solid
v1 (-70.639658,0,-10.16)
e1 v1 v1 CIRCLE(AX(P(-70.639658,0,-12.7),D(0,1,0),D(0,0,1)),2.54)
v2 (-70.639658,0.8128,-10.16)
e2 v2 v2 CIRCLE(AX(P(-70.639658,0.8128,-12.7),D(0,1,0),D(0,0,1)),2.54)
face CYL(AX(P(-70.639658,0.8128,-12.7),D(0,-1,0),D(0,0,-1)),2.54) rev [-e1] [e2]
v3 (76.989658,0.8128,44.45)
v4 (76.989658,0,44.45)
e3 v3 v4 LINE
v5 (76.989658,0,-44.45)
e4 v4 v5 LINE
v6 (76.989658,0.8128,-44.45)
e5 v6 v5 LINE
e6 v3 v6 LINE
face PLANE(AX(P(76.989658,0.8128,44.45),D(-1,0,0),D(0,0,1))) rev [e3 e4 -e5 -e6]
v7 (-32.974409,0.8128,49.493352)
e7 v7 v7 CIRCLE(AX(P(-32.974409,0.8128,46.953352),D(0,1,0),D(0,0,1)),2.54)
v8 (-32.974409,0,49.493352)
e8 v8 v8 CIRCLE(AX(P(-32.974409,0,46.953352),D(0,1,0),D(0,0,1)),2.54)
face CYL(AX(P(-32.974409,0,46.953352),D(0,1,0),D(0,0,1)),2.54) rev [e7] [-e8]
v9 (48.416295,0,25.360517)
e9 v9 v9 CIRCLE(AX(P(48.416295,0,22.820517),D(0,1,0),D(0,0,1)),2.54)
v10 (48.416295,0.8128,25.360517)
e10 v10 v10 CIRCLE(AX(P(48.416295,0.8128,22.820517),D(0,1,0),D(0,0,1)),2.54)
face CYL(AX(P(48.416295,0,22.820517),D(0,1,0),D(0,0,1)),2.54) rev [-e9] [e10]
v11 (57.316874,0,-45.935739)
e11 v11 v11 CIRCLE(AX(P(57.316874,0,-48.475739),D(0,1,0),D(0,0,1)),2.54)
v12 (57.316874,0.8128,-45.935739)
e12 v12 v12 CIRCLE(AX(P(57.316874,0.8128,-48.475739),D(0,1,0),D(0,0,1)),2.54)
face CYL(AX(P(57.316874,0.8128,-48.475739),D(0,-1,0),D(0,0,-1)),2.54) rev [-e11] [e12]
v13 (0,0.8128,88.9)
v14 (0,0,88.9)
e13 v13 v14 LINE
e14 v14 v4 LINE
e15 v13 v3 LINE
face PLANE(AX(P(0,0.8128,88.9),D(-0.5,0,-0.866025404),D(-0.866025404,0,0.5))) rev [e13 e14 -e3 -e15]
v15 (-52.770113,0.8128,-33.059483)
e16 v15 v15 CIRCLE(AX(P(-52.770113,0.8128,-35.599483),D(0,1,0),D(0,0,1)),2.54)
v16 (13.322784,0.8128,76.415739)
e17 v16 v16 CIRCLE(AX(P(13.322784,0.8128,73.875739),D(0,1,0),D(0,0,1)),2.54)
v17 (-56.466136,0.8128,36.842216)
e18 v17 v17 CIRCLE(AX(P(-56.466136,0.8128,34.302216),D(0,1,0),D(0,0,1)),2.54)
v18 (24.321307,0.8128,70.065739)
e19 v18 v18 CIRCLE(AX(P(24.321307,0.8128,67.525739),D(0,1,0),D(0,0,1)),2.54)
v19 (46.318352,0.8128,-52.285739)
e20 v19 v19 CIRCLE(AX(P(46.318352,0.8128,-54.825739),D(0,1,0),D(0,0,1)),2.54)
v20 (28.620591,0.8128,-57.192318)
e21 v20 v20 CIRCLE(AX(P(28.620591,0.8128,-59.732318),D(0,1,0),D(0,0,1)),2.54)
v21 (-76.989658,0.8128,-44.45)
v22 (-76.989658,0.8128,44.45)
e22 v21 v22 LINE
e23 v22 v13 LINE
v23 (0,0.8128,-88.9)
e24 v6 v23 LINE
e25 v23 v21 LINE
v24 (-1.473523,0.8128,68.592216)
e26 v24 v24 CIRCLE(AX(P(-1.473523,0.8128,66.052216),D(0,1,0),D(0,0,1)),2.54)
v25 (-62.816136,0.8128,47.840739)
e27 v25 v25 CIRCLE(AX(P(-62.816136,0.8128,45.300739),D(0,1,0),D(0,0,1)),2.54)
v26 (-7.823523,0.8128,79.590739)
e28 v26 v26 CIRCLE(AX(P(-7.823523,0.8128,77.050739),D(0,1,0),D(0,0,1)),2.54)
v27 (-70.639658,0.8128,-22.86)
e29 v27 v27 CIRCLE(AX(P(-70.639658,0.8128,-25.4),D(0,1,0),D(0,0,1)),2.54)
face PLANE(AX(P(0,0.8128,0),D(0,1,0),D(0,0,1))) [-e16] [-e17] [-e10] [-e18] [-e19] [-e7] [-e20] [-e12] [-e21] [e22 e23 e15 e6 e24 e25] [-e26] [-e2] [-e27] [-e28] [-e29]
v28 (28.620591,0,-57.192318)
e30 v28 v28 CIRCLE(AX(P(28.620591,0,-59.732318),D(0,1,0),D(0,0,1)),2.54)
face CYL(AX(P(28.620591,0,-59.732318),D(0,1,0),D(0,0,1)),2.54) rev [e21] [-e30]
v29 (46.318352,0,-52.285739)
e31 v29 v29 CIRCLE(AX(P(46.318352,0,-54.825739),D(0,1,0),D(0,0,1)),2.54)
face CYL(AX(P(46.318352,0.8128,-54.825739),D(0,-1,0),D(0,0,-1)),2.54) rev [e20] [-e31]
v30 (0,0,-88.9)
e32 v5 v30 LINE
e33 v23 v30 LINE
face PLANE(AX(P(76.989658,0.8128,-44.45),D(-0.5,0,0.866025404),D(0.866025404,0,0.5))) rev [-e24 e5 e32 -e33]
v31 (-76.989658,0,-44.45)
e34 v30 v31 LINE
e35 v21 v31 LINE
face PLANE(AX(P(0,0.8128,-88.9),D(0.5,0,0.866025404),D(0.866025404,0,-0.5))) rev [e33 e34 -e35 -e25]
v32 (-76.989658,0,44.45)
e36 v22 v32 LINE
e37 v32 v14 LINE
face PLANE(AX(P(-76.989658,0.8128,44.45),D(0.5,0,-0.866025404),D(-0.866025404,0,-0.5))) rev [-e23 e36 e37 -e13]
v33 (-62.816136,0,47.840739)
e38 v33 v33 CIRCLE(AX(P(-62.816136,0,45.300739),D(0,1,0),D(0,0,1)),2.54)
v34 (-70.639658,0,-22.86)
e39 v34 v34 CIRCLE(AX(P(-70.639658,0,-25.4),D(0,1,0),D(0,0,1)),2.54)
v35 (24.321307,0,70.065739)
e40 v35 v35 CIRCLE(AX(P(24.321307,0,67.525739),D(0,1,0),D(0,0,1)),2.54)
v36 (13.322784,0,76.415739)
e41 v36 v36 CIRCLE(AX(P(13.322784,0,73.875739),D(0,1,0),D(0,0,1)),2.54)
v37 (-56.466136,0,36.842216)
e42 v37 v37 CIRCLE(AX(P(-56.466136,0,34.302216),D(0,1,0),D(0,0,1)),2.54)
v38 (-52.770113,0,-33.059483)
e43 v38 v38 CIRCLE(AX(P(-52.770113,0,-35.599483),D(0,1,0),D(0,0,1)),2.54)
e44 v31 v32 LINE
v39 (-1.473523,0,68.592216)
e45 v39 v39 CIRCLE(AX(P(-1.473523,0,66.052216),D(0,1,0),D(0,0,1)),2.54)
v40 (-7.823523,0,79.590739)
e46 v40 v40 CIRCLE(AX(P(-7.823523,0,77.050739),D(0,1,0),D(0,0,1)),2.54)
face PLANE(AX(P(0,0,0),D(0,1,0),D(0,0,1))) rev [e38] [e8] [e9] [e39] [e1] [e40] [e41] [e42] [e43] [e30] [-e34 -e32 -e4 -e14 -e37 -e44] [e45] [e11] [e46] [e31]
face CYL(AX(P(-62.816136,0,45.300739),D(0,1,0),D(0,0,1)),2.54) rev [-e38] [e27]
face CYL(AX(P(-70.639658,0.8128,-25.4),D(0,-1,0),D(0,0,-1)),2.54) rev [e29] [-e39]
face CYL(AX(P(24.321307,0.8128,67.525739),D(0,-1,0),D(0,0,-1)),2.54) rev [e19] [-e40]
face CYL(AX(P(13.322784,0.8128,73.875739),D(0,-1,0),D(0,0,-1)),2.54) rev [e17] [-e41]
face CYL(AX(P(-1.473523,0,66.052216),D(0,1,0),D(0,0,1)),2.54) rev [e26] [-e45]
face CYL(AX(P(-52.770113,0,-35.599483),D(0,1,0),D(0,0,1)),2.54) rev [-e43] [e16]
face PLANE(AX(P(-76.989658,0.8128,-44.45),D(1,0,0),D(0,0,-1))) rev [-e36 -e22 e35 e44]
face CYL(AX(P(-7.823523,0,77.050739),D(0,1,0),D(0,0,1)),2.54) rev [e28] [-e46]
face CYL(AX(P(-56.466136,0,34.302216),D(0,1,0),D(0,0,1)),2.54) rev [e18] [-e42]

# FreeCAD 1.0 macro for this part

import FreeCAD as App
import Part
import Sketcher

V = App.Vector
Q = App.Units.Quantity

doc = App.newDocument("Part")
body = doc.addObject("PartDesign::Body", "Body")

# Sketch on XZ plane
sketch1 = doc.addObject("Sketcher::SketchObject", "Sketch")
body.addObject(sketch1)
sketch1.AttachmentSupport = (doc.XZ_Plane, [""])
sketch1.MapMode = "FlatFace"
sketch1.addGeometry([
    Part.LineSegment(V(0, -88.9, 0), V(-77, -44.5, 0)),  # 0
    Part.LineSegment(V(-77, -44.5, 0), V(-77, 44.5, 0)),  # 1
    Part.LineSegment(V(-77, 44.5, 0), V(0, 88.9, 0)),  # 2
    Part.LineSegment(V(0, 88.9, 0), V(77, 44.5, 0)),  # 3
    Part.LineSegment(V(77, 44.5, 0), V(77, -44.5, 0)),  # 4
    Part.LineSegment(V(77, -44.5, 0), V(0, -88.9, 0)),  # 5
    Part.Circle(V(13.3, 73.9, 0), V(0, 0, 1), 2.5),  # 6
    Part.Circle(V(24.3, 67.5, 0), V(0, 0, 1), 2.5),  # 7
    Part.Circle(V(-70.6, -12.7, 0), V(0, 0, 1), 2.5),  # 8
    Part.Circle(V(-70.6, -25.4, 0), V(0, 0, 1), 2.5),  # 9
    Part.Circle(V(57.3, -48.5, 0), V(0, 0, 1), 2.5),  # 10
    Part.Circle(V(46.3, -54.8, 0), V(0, 0, 1), 2.5),  # 11
], False)
sketch1.addConstraint([
    Sketcher.Constraint("Coincident", 0, 2, 1, 1),
    Sketcher.Constraint("Coincident", 1, 2, 2, 1),
    Sketcher.Constraint("Coincident", 2, 2, 3, 1),
    Sketcher.Constraint("Coincident", 3, 2, 4, 1),
    Sketcher.Constraint("Coincident", 4, 2, 5, 1),
    Sketcher.Constraint("Coincident", 5, 2, 0, 1),
    Sketcher.Constraint("Vertical", 1),
    Sketcher.Constraint("Vertical", 4),
    Sketcher.Constraint("Equal", 6, 7),
    Sketcher.Constraint("Equal", 7, 8),
    Sketcher.Constraint("Equal", 8, 9),
    Sketcher.Constraint("Equal", 9, 10),
    Sketcher.Constraint("Equal", 10, 11),
    Sketcher.Constraint("Symmetric", 0, 2, 3, 2, -1, 1),
    Sketcher.Constraint("Symmetric", 2, 2, 5, 2, -1, 1),
    Sketcher.Constraint("PointOnObject", 2, 2, -2),
    Sketcher.Constraint("Parallel", 2, 5),
    Sketcher.Constraint("Horizontal", 1, 2, 3, 2),
    Sketcher.Constraint("Vertical", 8, 3, 9, 3),
    Sketcher.Constraint("Diameter", 6, Q("0.2 in")),
    Sketcher.Constraint("DistanceY", 1, 1, 1, 2, Q("3.5 in")),
    Sketcher.Constraint("DistanceY", 9, 3, -1, 1, Q("1 in")),
    Sketcher.Constraint("Angle", 0, Q("150 deg")),
    Sketcher.Constraint("DistanceY", 8, 3, 2, 2, Q("4 in")),
    Sketcher.Constraint("Distance", 0, Q("3.5 in")),
    Sketcher.Constraint("DistanceY", 7, 3, 6, 3, Q("0.25 in")),
    Sketcher.Constraint("DistanceY", 11, 3, 10, 3, Q("0.25 in")),
    Sketcher.Constraint("DistanceX", 0, 2, 9, 3, Q("0.25 in")),
    Sketcher.Constraint("DistanceY", -1, 1, 6, 3, 73.875739),
    Sketcher.Constraint("DistanceY", 10, 3, -1, 1, 48.475739),
    Sketcher.Constraint("DistanceX", -1, 1, 11, 3, 46.318352),
    Sketcher.Constraint("DistanceX", 6, 3, 10, 3, 43.994091),
    Sketcher.Constraint("DistanceX", 7, 3, 3, 2, 52.668352),
    Sketcher.Constraint("DistanceX", -1, 1, 6, 3, 13.322784),
])
pad1 = doc.addObject("PartDesign::Pad", "Pad")
body.addObject(pad1)
pad1.Profile = sketch1
pad1.Length = Q("0.032 in")
pad1.Reversed = True

# Sketch on XZ plane
sketch2 = doc.addObject("Sketcher::SketchObject", "Sketch001")
body.addObject(sketch2)
sketch2.AttachmentSupport = (doc.XZ_Plane, [""])
sketch2.MapMode = "FlatFace"
sketch2.AttachmentOffset = App.Placement(V(0, 0, -0.032 * 25.4), App.Rotation())
sketch2.addGeometry([
    Part.Circle(V(28.6, -59.7, 0), V(0, 0, 1), 2.5),
    Part.Circle(V(48.4, 22.8, 0), V(0, 0, 1), 2.5),
    Part.Circle(V(-52.8, -35.6, 0), V(0, 0, 1), 2.5),
    Part.Circle(V(-33, 47, 0), V(0, 0, 1), 2.5),
], False)
sketch2.addConstraint([
    Sketcher.Constraint("Equal", 0, 1),
    Sketcher.Constraint("Equal", 1, 2),
    Sketcher.Constraint("Equal", 2, 3),
    Sketcher.Constraint("Diameter", 0, Q("0.2 in")),
    Sketcher.Constraint("DistanceY", 2, 3, 1, 3, Q("2.3 in")),
    Sketcher.Constraint("DistanceX", 3, 3, 0, 3, Q("2.425 in")),
    Sketcher.Constraint("DistanceX", -1, 1, 0, 3, 28.620591),
    Sketcher.Constraint("DistanceY", -1, 1, 3, 3, 46.953352),
    Sketcher.Constraint("DistanceX", 2, 3, 1, 3, 101.186408),
    Sketcher.Constraint("DistanceY", 0, 3, 3, 3, 106.685669),
    Sketcher.Constraint("DistanceX", -1, 1, 1, 3, 48.416295),
    Sketcher.Constraint("DistanceY", -1, 1, 1, 3, 22.820517),
])
pocket1 = doc.addObject("PartDesign::Pocket", "Pocket")
body.addObject(pocket1)
pocket1.Profile = sketch2
pocket1.Type = "ThroughAll"
pocket1.Reversed = True

# Sketch on XZ plane
sketch3 = doc.addObject("Sketcher::SketchObject", "Sketch002")
body.addObject(sketch3)
sketch3.AttachmentSupport = (doc.XZ_Plane, [""])
sketch3.MapMode = "FlatFace"
sketch3.AttachmentOffset = App.Placement(V(0, 0, -0.032 * 25.4), App.Rotation())
sketch3.addGeometry([
    Part.Circle(V(-7.8, 77.1, 0), V(0, 0, 1), 2.5),
    Part.Circle(V(-62.8, 45.3, 0), V(0, 0, 1), 2.5),
    Part.Circle(V(-56.5, 34.3, 0), V(0, 0, 1), 2.5),
    Part.Circle(V(-1.5, 66.1, 0), V(0, 0, 1), 2.5),
], False)
sketch3.addConstraint([
    Sketcher.Constraint("Equal", 0, 1),
    Sketcher.Constraint("Equal", 1, 2),
    Sketcher.Constraint("Equal", 2, 3),
    Sketcher.Constraint("Diameter", 0, Q("0.2 in")),
    Sketcher.Constraint("DistanceY", 1, 3, 0, 3, Q("1.25 in")),
    Sketcher.Constraint("DistanceX", 1, 3, 2, 3, Q("0.25 in")),
    Sketcher.Constraint("DistanceX", 0, 3, 3, 3, Q("0.25 in")),
    Sketcher.Constraint("DistanceY", 2, 3, 3, 3, Q("1.25 in")),
    Sketcher.Constraint("DistanceY", -1, 1, 0, 3, 77.050739),
    Sketcher.Constraint("DistanceX", 0, 3, -1, 1, 7.823523),
    Sketcher.Constraint("DistanceX", 1, 3, -1, 1, 62.816136),
    Sketcher.Constraint("DistanceY", -1, 1, 2, 3, 34.302216),
])
pocket2 = doc.addObject("PartDesign::Pocket", "Pocket001")
body.addObject(pocket2)
pocket2.Profile = sketch3
pocket2.Type = "ThroughAll"
pocket2.Reversed = True

doc.recompute()
